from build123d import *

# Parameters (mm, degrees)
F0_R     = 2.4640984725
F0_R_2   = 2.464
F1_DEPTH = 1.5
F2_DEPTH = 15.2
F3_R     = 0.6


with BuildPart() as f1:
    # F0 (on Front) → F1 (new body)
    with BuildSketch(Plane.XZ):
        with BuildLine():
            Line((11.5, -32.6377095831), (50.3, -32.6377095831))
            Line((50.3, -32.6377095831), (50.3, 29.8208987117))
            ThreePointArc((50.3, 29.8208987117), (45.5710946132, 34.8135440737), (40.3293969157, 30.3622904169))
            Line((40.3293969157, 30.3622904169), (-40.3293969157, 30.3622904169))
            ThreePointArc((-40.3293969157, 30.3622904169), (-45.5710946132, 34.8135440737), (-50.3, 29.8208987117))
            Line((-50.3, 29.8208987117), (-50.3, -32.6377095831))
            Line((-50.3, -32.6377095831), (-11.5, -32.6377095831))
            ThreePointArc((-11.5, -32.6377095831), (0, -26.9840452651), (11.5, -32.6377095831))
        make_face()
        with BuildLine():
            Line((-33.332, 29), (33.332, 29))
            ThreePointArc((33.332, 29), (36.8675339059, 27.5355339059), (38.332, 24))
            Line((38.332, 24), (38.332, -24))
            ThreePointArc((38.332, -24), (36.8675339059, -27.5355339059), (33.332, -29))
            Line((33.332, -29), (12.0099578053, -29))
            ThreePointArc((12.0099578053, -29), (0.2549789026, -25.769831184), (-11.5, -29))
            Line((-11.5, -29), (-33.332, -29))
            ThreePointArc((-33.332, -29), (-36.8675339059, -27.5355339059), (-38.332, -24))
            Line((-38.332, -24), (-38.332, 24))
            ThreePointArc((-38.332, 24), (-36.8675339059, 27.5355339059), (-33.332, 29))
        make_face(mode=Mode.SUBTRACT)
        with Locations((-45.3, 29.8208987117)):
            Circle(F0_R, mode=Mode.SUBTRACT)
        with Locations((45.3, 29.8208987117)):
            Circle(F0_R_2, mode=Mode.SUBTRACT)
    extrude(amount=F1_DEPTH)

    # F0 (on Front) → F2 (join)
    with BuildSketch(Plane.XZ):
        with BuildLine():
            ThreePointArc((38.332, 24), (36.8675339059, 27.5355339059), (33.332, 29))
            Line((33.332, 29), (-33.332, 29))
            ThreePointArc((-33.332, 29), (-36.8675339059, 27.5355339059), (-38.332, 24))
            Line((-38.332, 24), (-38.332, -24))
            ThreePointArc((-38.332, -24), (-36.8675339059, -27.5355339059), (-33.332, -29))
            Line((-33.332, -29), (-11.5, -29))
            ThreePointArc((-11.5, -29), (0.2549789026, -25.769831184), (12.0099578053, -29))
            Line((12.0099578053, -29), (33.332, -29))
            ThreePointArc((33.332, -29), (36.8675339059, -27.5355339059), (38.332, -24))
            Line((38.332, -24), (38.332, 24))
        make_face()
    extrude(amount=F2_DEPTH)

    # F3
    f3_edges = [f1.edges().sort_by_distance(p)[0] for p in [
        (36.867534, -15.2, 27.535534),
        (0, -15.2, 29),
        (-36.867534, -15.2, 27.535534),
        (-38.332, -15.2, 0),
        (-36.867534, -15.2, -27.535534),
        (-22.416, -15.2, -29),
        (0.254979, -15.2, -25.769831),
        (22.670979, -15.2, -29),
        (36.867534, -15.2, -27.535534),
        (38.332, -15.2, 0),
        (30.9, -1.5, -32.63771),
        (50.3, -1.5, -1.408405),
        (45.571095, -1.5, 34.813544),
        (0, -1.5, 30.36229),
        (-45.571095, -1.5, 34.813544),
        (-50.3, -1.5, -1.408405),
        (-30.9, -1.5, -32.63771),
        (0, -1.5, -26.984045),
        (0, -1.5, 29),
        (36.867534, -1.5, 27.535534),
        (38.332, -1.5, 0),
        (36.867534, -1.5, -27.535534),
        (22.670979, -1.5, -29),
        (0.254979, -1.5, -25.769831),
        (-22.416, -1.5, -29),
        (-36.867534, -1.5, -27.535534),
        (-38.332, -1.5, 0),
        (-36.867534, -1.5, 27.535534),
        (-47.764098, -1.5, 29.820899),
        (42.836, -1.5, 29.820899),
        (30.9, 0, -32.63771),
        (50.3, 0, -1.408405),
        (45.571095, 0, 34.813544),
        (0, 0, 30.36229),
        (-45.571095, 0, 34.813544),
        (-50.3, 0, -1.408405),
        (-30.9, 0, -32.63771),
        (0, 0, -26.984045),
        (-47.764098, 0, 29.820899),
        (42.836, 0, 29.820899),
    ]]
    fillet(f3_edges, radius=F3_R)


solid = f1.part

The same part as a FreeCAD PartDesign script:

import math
import FreeCAD as App
import Part
import Sketcher
Q = App.Units.Quantity


def edges_at(feature, points):
    """Names of the edges that pass closest to the given points."""
    edges = feature.Shape.Edges
    near = lambda p: min(range(len(edges)), key=lambda i: edges[i].distToShape(Part.Vertex(*p))[0])
    return sorted({f"Edge{near(p) + 1}" for p in points})

doc = App.newDocument("Part")
body = doc.addObject("PartDesign::Body", "Body")

sketch1 = body.newObject("Sketcher::SketchObject", "Sketch")
sketch1.AttachmentSupport = (doc.getObject("XZ_Plane"), [""])
sketch1.MapMode = "FlatFace"
sketch1.addGeometry(Part.LineSegment(App.Vector(11.5, -32.6, 0), App.Vector(50.3, -32.6, 0)), False)
sketch1.addGeometry(Part.LineSegment(App.Vector(50.3, -32.6, 0), App.Vector(50.3, 29.8, 0)), False)
sketch1.addGeometry(Part.ArcOfCircle(Part.Circle(App.Vector(45.3, 29.8, 0), App.Vector(0, 0, 1), 5), math.radians(0), math.radians(174)), False)
sketch1.addGeometry(Part.LineSegment(App.Vector(40.3, 30.4, 0), App.Vector(-40.3, 30.4, 0)), False)
sketch1.addGeometry(Part.ArcOfCircle(Part.Circle(App.Vector(-45.3, 29.8, 0), App.Vector(0, 0, 1), 5), math.radians(6), math.radians(180)), False)
sketch1.addGeometry(Part.LineSegment(App.Vector(-50.3, 29.8, 0), App.Vector(-50.3, -32.6, 0)), False)
sketch1.addGeometry(Part.LineSegment(App.Vector(-50.3, -32.6, 0), App.Vector(-11.5, -32.6, 0)), False)
sketch1.addGeometry(Part.ArcOfCircle(Part.Circle(App.Vector(0, -41.5, 0), App.Vector(0, 0, 1), 14.5), math.radians(38), math.radians(142)), False)
sketch1.addGeometry(Part.ArcOfCircle(Part.Circle(App.Vector(-33.3, 24, 0), App.Vector(0, 0, 1), 5), math.radians(90), math.radians(180)), False)
sketch1.addGeometry(Part.LineSegment(App.Vector(-33.3, 29, 0), App.Vector(33.3, 29, 0)), False)
sketch1.addGeometry(Part.ArcOfCircle(Part.Circle(App.Vector(33.3, 24, 0), App.Vector(0, 0, 1), 5), math.radians(0), math.radians(90)), False)
sketch1.addGeometry(Part.LineSegment(App.Vector(38.3, 24, 0), App.Vector(38.3, -24, 0)), False)
sketch1.addGeometry(Part.ArcOfCircle(Part.Circle(App.Vector(33.3, -24, 0), App.Vector(0, 0, 1), 5), math.radians(-90), math.radians(0)), False)
sketch1.addGeometry(Part.LineSegment(App.Vector(33.3, -29, 0), App.Vector(12, -29, 0)), False)
sketch1.addGeometry(Part.ArcOfCircle(Part.Circle(App.Vector(0.3, -48.8, 0), App.Vector(0, 0, 1), 23), math.radians(59), math.radians(121)), False)
sketch1.addGeometry(Part.LineSegment(App.Vector(-11.5, -29, 0), App.Vector(-33.3, -29, 0)), False)
sketch1.addGeometry(Part.ArcOfCircle(Part.Circle(App.Vector(-33.3, -24, 0), App.Vector(0, 0, 1), 5), math.radians(180), math.radians(270)), False)
sketch1.addGeometry(Part.LineSegment(App.Vector(-38.3, -24, 0), App.Vector(-38.3, 24, 0)), False)
sketch1.addGeometry(Part.Circle(App.Vector(-45.3, 29.8, 0), App.Vector(0, 0, 1), 2.5), False)
sketch1.addGeometry(Part.Circle(App.Vector(45.3, 29.8, 0), App.Vector(0, 0, 1), 2.5), False)
sketch1.addConstraint(Sketcher.Constraint("Coincident", 0, 2, 1, 1))
sketch1.addConstraint(Sketcher.Constraint("Tangent", 1, 2, 2, 1))
sketch1.addConstraint(Sketcher.Constraint("Coincident", 2, 2, 3, 1))
sketch1.addConstraint(Sketcher.Constraint("Coincident", 3, 2, 4, 1))
sketch1.addConstraint(Sketcher.Constraint("Tangent", 4, 2, 5, 1))
sketch1.addConstraint(Sketcher.Constraint("Coincident", 5, 2, 6, 1))
sketch1.addConstraint(Sketcher.Constraint("Coincident", 6, 2, 7, 2))
sketch1.addConstraint(Sketcher.Constraint("Coincident", 7, 1, 0, 1))
sketch1.addConstraint(Sketcher.Constraint("Tangent", 8, 1, 9, 1))
sketch1.addConstraint(Sketcher.Constraint("Tangent", 9, 2, 10, 2))
sketch1.addConstraint(Sketcher.Constraint("Tangent", 10, 1, 11, 1))
sketch1.addConstraint(Sketcher.Constraint("Tangent", 11, 2, 12, 2))
sketch1.addConstraint(Sketcher.Constraint("Tangent", 12, 1, 13, 1))
sketch1.addConstraint(Sketcher.Constraint("Coincident", 13, 2, 14, 1))
sketch1.addConstraint(Sketcher.Constraint("Coincident", 14, 2, 15, 1))
sketch1.addConstraint(Sketcher.Constraint("Tangent", 15, 2, 16, 2))
sketch1.addConstraint(Sketcher.Constraint("Tangent", 16, 1, 17, 1))
sketch1.addConstraint(Sketcher.Constraint("Tangent", 17, 2, 8, 2))
sketch1.addConstraint(Sketcher.Constraint("Horizontal", 0))
sketch1.addConstraint(Sketcher.Constraint("Vertical", 1))
sketch1.addConstraint(Sketcher.Constraint("Horizontal", 3))
sketch1.addConstraint(Sketcher.Constraint("Vertical", 5))
sketch1.addConstraint(Sketcher.Constraint("Horizontal", 6))
sketch1.addConstraint(Sketcher.Constraint("Horizontal", 9))
sketch1.addConstraint(Sketcher.Constraint("Vertical", 11))
sketch1.addConstraint(Sketcher.Constraint("Horizontal", 13))
sketch1.addConstraint(Sketcher.Constraint("Horizontal", 15))
sketch1.addConstraint(Sketcher.Constraint("Vertical", 17))
sketch1.addConstraint(Sketcher.Constraint("Coincident", 18, 3, 4, 3))
sketch1.addConstraint(Sketcher.Constraint("Coincident", 19, 3, 2, 3))
sketch1.addConstraint(Sketcher.Constraint("Equal", 2, 4))
sketch1.addConstraint(Sketcher.Constraint("Equal", 4, 8))
sketch1.addConstraint(Sketcher.Constraint("Equal", 8, 10))
sketch1.addConstraint(Sketcher.Constraint("Equal", 10, 12))
sketch1.addConstraint(Sketcher.Constraint("Equal", 12, 16))
sketch1.addConstraint(Sketcher.Constraint("Symmetric", 8, 3, 12, 3, -1, 1))
sketch1.addConstraint(Sketcher.Constraint("Symmetric", 2, 3, 4, 3, -2))
sketch1.addConstraint(Sketcher.Constraint("Symmetric", 6, 2, 7, 1, -2))
sketch1.addConstraint(Sketcher.Constraint("Horizontal", 12, 3, 16, 3))
sketch1.addConstraint(Sketcher.Constraint("Vertical", 6, 2, 14, 2))
sketch1.addConstraint(Sketcher.Constraint("Radius", 2, Q("5 mm")))
sketch1.addConstraint(Sketcher.Constraint("DistanceY", 11, 2, 11, 1, Q("48 mm")))
sketch1.addConstraint(Sketcher.Constraint("Diameter", 19, Q("4.928 mm")))
sketch1.addConstraint(Sketcher.Constraint("DistanceX", 0, 1, 0, 2, Q("38.8 mm")))
sketch1.addConstraint(Sketcher.Constraint("DistanceX", 6, 2, 7, 1, Q("23 mm")))
sketch1.addConstraint(Sketcher.Constraint("DistanceX", 9, 1, 9, 2, Q("66.664 mm")))
sketch1.addConstraint(Sketcher.Constraint("Diameter", 18, Q("4.928197 mm")))
sketch1.addConstraint(Sketcher.Constraint("Radius", 7, Q("14.522787 mm")))
sketch1.addConstraint(Sketcher.Constraint("Radius", 14, Q("23.003986 mm")))
sketch1.addConstraint(Sketcher.Constraint("DistanceY", 1, 1, 1, 2, Q("62.458608 mm")))
sketch1.addConstraint(Sketcher.Constraint("DistanceY", -1, 1, 2, 3, Q("29.820899 mm")))
sketch1.addConstraint(Sketcher.Constraint("DistanceX", 3, 2, 3, 1, Q("80.658794 mm")))
sketch1.addConstraint(Sketcher.Constraint("DistanceX", 13, 2, 13, 1, Q("21.322042 mm")))
pad1 = body.newObject("PartDesign::Pad", "Pad")
pad1.Profile = sketch1
pad1.Length = 1.5

sketch2 = body.newObject("Sketcher::SketchObject", "Sketch001")
sketch2.AttachmentSupport = (doc.getObject("XZ_Plane"), [""])
sketch2.MapMode = "FlatFace"
sketch2.addGeometry(Part.ArcOfCircle(Part.Circle(App.Vector(33, 24, 0), App.Vector(0, 0, 1), 5), math.radians(0), math.radians(90)), False)
sketch2.addGeometry(Part.LineSegment(App.Vector(33, 29, 0), App.Vector(-33, 29, 0)), False)
sketch2.addGeometry(Part.ArcOfCircle(Part.Circle(App.Vector(-33, 24, 0), App.Vector(0, 0, 1), 5), math.radians(90), math.radians(180)), False)
sketch2.addGeometry(Part.LineSegment(App.Vector(-38, 24, 0), App.Vector(-38, -24, 0)), False)
sketch2.addGeometry(Part.ArcOfCircle(Part.Circle(App.Vector(-33, -24, 0), App.Vector(0, 0, 1), 5), math.radians(180), math.radians(270)), False)
sketch2.addGeometry(Part.LineSegment(App.Vector(-33, -29, 0), App.Vector(-12, -29, 0)), False)
sketch2.addGeometry(Part.ArcOfCircle(Part.Circle(App.Vector(0, -49, 0), App.Vector(0, 0, 1), 23), math.radians(59), math.radians(121)), False)
sketch2.addGeometry(Part.LineSegment(App.Vector(12, -29, 0), App.Vector(33, -29, 0)), False)
sketch2.addGeometry(Part.ArcOfCircle(Part.Circle(App.Vector(33, -24, 0), App.Vector(0, 0, 1), 5), math.radians(-90), math.radians(0)), False)
sketch2.addGeometry(Part.LineSegment(App.Vector(38, -24, 0), App.Vector(38, 24, 0)), False)
sketch2.addConstraint(Sketcher.Constraint("Tangent", 0, 2, 1, 1))
sketch2.addConstraint(Sketcher.Constraint("Tangent", 1, 2, 2, 1))
sketch2.addConstraint(Sketcher.Constraint("Tangent", 2, 2, 3, 1))
sketch2.addConstraint(Sketcher.Constraint("Tangent", 3, 2, 4, 1))
sketch2.addConstraint(Sketcher.Constraint("Tangent", 4, 2, 5, 1))
sketch2.addConstraint(Sketcher.Constraint("Coincident", 5, 2, 6, 2))
sketch2.addConstraint(Sketcher.Constraint("Coincident", 6, 1, 7, 1))
sketch2.addConstraint(Sketcher.Constraint("Tangent", 7, 2, 8, 1))
sketch2.addConstraint(Sketcher.Constraint("Tangent", 8, 2, 9, 1))
sketch2.addConstraint(Sketcher.Constraint("Tangent", 9, 2, 0, 1))
sketch2.addConstraint(Sketcher.Constraint("Horizontal", 1))
sketch2.addConstraint(Sketcher.Constraint("Vertical", 3))
sketch2.addConstraint(Sketcher.Constraint("Horizontal", 5))
sketch2.addConstraint(Sketcher.Constraint("Horizontal", 7))
sketch2.addConstraint(Sketcher.Constraint("Vertical", 9))
sketch2.addConstraint(Sketcher.Constraint("Equal", 0, 2))
sketch2.addConstraint(Sketcher.Constraint("Equal", 2, 4))
sketch2.addConstraint(Sketcher.Constraint("Equal", 4, 8))
sketch2.addConstraint(Sketcher.Constraint("Symmetric", 0, 3, 4, 3, -1, 1))
sketch2.addConstraint(Sketcher.Constraint("Horizontal", 4, 3, 8, 3))
sketch2.addConstraint(Sketcher.Constraint("Radius", 0, Q("5 mm")))
sketch2.addConstraint(Sketcher.Constraint("DistanceY", 3, 2, 3, 1, Q("48 mm")))
sketch2.addConstraint(Sketcher.Constraint("DistanceX", 5, 2, -1, 1, Q("11.5 mm")))
sketch2.addConstraint(Sketcher.Constraint("DistanceX", 1, 2, 1, 1, Q("66.664 mm")))
sketch2.addConstraint(Sketcher.Constraint("Radius", 6, Q("23.003986 mm")))
sketch2.addConstraint(Sketcher.Constraint("DistanceX", 7, 1, 7, 2, Q("21.322042 mm")))
pad2 = body.newObject("PartDesign::Pad", "Pad001")
pad2.Profile = sketch2
pad2.Length = 15.2
doc.recompute()

fillet = body.newObject("PartDesign::Fillet", "Fillet")
fillet.Base = (pad2, edges_at(pad2, [
    (36.868, -15.2, 27.536),
    (0, -15.2, 29),
    (-36.868, -15.2, 27.536),
    (-38.332, -15.2, 0),
    (-36.868, -15.2, -27.536),
    (-22.416, -15.2, -29),
    (0.255, -15.2, -25.77),
    (22.671, -15.2, -29),
    (36.868, -15.2, -27.536),
    (38.332, -15.2, 0),
    (30.9, -1.5, -32.638),
    (50.3, -1.5, -1.408),
    (45.571, -1.5, 34.814),
    (0, -1.5, 30.362),
    (-45.571, -1.5, 34.814),
    (-50.3, -1.5, -1.408),
    (-30.9, -1.5, -32.638),
    (0, -1.5, -26.984),
    (0, -1.5, 29),
    (36.868, -1.5, 27.536),
    (38.332, -1.5, 0),
    (36.868, -1.5, -27.536),
    (22.671, -1.5, -29),
    (0.255, -1.5, -25.77),
    (-22.416, -1.5, -29),
    (-36.868, -1.5, -27.536),
    (-38.332, -1.5, 0),
    (-36.868, -1.5, 27.536),
    (-47.764, -1.5, 29.821),
    (42.836, -1.5, 29.821),
    (30.9, 0, -32.638),
    (50.3, 0, -1.408),
    (45.571, 0, 34.814),
    (0, 0, 30.362),
    (-45.571, 0, 34.814),
    (-50.3, 0, -1.408),
    (-30.9, 0, -32.638),
    (0, 0, -26.984),
    (-47.764, 0, 29.821),
    (42.836, 0, 29.821),
]))
fillet.Radius = 0.6

doc.recompute()
